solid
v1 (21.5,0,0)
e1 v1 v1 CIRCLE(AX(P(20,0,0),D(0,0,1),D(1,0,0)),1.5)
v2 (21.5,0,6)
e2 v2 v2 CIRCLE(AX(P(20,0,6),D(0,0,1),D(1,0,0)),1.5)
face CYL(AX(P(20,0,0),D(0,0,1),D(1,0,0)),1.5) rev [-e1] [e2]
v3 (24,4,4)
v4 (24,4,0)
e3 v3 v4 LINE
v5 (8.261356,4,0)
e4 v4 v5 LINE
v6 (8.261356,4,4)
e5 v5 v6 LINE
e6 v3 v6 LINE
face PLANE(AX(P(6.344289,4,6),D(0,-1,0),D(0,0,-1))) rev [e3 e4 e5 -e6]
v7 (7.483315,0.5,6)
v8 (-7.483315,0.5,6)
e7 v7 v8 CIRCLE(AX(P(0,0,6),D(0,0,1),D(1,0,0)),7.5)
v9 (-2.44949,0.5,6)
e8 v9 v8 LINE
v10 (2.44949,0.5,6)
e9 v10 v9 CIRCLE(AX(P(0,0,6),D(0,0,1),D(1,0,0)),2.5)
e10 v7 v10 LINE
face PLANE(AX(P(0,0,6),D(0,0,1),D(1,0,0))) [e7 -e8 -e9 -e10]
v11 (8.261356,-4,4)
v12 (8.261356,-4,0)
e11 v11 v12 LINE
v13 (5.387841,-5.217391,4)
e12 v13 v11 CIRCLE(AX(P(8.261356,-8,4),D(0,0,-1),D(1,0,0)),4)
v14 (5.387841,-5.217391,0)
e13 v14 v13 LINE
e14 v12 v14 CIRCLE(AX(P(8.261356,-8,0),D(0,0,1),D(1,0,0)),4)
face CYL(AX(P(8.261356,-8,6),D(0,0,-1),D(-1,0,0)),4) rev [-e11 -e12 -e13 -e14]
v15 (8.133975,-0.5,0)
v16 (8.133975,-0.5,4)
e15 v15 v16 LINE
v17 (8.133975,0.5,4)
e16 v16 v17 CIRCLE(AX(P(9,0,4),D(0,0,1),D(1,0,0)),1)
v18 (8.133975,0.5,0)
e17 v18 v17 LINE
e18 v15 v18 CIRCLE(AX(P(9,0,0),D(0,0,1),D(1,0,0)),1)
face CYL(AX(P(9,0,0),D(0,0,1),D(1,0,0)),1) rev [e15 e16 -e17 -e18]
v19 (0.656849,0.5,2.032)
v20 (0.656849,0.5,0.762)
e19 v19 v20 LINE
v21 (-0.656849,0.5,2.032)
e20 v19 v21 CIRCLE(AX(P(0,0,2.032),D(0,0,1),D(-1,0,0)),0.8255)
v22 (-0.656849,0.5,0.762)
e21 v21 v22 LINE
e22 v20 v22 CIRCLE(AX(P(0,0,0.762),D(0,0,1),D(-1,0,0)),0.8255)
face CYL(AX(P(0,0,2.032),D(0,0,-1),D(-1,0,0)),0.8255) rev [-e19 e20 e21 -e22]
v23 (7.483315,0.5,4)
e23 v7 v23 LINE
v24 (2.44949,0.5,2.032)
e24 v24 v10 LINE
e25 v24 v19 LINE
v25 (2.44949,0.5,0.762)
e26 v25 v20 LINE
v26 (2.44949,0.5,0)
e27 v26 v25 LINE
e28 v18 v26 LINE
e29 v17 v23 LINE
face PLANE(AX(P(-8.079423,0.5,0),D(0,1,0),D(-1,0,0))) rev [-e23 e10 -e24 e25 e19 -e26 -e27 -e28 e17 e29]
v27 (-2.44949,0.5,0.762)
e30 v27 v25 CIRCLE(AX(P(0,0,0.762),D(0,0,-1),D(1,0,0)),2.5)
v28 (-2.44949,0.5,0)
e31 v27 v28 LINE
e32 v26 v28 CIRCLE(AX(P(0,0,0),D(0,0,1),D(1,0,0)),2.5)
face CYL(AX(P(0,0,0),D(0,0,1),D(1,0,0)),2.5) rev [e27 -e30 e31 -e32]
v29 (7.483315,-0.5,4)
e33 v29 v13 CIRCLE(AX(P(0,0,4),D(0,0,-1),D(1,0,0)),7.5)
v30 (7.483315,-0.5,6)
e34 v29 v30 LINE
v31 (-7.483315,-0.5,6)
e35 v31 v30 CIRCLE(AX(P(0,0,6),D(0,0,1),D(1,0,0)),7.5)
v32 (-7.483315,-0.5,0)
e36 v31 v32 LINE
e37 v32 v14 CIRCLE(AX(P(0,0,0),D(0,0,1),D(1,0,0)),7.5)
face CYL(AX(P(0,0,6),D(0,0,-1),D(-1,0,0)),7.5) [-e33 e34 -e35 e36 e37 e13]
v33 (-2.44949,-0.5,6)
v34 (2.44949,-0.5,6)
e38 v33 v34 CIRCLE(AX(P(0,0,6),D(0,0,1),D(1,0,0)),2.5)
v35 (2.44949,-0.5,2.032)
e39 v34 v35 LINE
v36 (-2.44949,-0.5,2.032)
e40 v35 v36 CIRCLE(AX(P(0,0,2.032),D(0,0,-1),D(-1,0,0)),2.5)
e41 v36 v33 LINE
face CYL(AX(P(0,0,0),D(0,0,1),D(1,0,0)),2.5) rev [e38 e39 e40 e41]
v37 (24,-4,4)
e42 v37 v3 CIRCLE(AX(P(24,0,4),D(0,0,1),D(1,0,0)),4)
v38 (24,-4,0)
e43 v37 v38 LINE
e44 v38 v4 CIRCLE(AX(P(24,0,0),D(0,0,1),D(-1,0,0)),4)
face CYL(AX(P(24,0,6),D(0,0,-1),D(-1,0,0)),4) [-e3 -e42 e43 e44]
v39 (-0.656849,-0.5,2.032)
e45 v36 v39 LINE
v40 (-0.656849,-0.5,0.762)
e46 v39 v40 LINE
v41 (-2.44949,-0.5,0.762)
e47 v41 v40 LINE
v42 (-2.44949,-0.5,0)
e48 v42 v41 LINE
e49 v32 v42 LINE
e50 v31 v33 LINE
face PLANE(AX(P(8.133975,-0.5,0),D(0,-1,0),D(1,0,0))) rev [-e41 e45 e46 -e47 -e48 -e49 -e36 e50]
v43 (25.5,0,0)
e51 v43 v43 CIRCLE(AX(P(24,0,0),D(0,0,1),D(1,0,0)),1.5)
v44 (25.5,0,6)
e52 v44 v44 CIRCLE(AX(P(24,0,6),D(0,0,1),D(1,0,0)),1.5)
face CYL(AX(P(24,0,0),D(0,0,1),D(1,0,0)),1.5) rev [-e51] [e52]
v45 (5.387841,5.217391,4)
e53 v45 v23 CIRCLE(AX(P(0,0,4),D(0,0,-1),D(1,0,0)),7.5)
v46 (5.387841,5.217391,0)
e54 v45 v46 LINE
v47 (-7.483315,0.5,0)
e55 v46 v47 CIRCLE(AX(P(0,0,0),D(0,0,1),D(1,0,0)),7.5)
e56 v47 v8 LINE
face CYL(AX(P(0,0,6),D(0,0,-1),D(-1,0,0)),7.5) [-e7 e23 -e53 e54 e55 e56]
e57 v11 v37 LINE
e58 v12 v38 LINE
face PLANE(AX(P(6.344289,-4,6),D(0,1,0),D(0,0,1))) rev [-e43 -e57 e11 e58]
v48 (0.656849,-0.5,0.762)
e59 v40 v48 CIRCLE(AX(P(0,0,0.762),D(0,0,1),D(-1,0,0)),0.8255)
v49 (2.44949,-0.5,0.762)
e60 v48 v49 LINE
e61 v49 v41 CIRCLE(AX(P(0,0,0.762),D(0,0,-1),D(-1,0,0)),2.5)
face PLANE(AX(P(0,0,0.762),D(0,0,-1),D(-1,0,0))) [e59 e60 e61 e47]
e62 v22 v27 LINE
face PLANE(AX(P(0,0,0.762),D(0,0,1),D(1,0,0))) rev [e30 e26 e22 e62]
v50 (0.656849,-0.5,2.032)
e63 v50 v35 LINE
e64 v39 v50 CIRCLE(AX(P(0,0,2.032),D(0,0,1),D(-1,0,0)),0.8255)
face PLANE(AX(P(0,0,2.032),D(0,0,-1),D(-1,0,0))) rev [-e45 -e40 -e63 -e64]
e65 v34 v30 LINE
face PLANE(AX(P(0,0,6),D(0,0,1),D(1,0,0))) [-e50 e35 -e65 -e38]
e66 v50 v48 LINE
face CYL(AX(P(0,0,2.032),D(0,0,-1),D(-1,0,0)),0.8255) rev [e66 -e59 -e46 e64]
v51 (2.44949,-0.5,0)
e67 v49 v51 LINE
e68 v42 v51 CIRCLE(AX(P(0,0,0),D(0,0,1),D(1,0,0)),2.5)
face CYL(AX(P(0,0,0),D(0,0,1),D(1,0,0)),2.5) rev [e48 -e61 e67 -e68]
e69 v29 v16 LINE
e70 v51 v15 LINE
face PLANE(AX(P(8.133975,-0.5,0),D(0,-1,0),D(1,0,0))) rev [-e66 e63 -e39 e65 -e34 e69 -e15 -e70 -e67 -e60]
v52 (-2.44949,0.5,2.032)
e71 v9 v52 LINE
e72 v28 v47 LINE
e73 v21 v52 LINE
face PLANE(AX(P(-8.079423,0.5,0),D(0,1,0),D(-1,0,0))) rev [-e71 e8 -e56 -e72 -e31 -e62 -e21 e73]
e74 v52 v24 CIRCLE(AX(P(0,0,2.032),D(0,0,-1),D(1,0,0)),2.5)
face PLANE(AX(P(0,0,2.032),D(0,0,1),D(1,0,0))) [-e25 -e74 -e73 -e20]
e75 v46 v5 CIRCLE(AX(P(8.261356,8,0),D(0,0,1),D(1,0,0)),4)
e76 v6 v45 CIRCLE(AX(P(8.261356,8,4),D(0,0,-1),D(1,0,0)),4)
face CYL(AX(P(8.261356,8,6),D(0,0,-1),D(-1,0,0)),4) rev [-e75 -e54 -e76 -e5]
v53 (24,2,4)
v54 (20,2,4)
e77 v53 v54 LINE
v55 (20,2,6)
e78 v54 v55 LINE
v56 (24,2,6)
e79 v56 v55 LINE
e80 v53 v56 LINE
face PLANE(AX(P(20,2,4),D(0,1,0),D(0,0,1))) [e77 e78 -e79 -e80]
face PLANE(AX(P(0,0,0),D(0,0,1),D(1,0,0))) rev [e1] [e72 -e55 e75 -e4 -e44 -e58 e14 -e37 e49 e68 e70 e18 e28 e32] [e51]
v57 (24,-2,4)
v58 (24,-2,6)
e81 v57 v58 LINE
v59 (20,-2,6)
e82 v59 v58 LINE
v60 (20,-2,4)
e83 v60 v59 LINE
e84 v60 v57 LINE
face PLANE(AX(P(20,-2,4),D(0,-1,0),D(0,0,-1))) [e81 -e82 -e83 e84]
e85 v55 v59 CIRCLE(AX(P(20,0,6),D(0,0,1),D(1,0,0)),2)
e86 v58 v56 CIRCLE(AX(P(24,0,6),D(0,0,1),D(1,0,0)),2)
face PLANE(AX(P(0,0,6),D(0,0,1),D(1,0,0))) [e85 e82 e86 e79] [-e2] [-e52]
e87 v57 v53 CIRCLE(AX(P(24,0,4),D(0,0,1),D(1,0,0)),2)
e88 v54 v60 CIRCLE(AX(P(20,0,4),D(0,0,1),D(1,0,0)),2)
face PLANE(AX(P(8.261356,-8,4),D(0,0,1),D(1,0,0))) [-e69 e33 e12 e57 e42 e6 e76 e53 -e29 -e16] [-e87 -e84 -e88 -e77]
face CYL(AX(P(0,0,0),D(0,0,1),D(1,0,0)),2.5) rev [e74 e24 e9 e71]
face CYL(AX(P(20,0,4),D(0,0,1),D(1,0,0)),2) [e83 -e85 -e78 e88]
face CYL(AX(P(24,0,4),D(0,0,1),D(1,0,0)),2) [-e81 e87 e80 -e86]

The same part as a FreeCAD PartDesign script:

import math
import FreeCAD as App
import Part
import Sketcher
from FreeCAD import Vector


def edges_at(feature, points):
    """Names of the edges that pass closest to the given points."""
    edges = feature.Shape.Edges
    near = lambda p: min(range(len(edges)), key=lambda i: edges[i].distToShape(Part.Vertex(*p))[0])
    return sorted({f"Edge{near(p) + 1}" for p in points})

doc = App.newDocument("Part")
body = doc.addObject("PartDesign::Body", "Body")

# Sketch on XY plane
sketch1 = body.newObject("Sketcher::SketchObject", "Sketch")
sketch1.AttachmentSupport = (doc.getObject("XY_Plane"), [""])
sketch1.MapMode = "FlatFace"
sketch1.addGeometry([
    Part.LineSegment(Vector(24, 4, 0), Vector(6.344289, 4, 0)),
    Part.ArcOfCircle(Part.Circle(Vector(0, 0, 0), Vector(0, 0, 1), 7.5), math.radians(32.230953), math.radians(327.769047)),
    Part.LineSegment(Vector(6.344289, -4, 0), Vector(24, -4, 0)),
    Part.ArcOfCircle(Part.Circle(Vector(24, 0, 0), Vector(0, 0, 1), 4), math.radians(-90), math.radians(90)),
], False)
sketch1.addConstraint([
    Sketcher.Constraint("Coincident", 0, 2, 1, 1),
    Sketcher.Constraint("Coincident", 1, 2, 2, 1),
    Sketcher.Constraint("Tangent", 2, 2, 3, 1),
    Sketcher.Constraint("Tangent", 3, 2, 0, 1),
    Sketcher.Constraint("Horizontal", 0),
    Sketcher.Constraint("Horizontal", 2),
    Sketcher.Constraint("Coincident", 1, 3, -1, 1),
    Sketcher.Constraint("PointOnObject", 3, 3, -1),
    Sketcher.Constraint("Radius", 3, 4.0),
    Sketcher.Constraint("Radius", 1, 7.5),
    Sketcher.Constraint("DistanceX", -1, 1, 3, 3, 24.0),
])
pad1 = body.newObject("PartDesign::Pad", "Pad")
pad1.Profile = sketch1
pad1.Length = 6
doc.recompute()

fillet = body.newObject("PartDesign::Fillet", "Fillet")
fillet.Base = (pad1, edges_at(pad1, [(6.344, 4, 3), (6.344, -4, 3)]))
fillet.Radius = 4

# Sketch on XY plane
sketch2 = body.newObject("Sketcher::SketchObject", "Sketch001")
sketch2.AttachmentSupport = (doc.getObject("XY_Plane"), [""])
sketch2.MapMode = "FlatFace"
sketch2.AttachmentOffset = App.Placement(Vector(0, 0, 6), App.Rotation())
sketch2.addGeometry([
    Part.LineSegment(Vector(8.261356, -4, 0), Vector(24, -4, 0)),  # 0
    Part.ArcOfCircle(Part.Circle(Vector(24, 0, 0), Vector(0, 0, 1), 4), math.radians(-90), math.radians(90)),  # 1
    Part.LineSegment(Vector(24, 4, 0), Vector(8.261356, 4, 0)),  # 2
    Part.ArcOfCircle(Part.Circle(Vector(8.261356, 8, 0), Vector(0, 0, 1), 4), math.radians(-135.92079), math.radians(-90)),  # 3
    Part.ArcOfCircle(Part.Circle(Vector(0, 0, 0), Vector(0, 0, 1), 7.5), math.radians(-44.07921), math.radians(44.07921)),  # 4
    Part.ArcOfCircle(Part.Circle(Vector(8.261356, -8, 0), Vector(0, 0, 1), 4), math.radians(90), math.radians(135.92079)),  # 5
    Part.ArcOfCircle(Part.Circle(Vector(20, 0, 0), Vector(0, 0, 1), 2), math.radians(90), math.radians(270)),  # 6
    Part.LineSegment(Vector(20, 2, 0), Vector(24, 2, 0)),  # 7
    Part.ArcOfCircle(Part.Circle(Vector(24, 0, 0), Vector(0, 0, 1), 2), math.radians(-90), math.radians(90)),  # 8
    Part.LineSegment(Vector(24, -2, 0), Vector(20, -2, 0)),  # 9
], False)
sketch2.addConstraint([
    Sketcher.Constraint("Tangent", 0, 2, 1, 1),
    Sketcher.Constraint("Tangent", 1, 2, 2, 1),
    Sketcher.Constraint("Tangent", 2, 2, 3, 2),
    Sketcher.Constraint("Tangent", 3, 1, 4, 2),
    Sketcher.Constraint("Tangent", 4, 1, 5, 2),
    Sketcher.Constraint("Tangent", 5, 1, 0, 1),
    Sketcher.Constraint("Tangent", 6, 1, 7, 1),
    Sketcher.Constraint("Tangent", 7, 2, 8, 2),
    Sketcher.Constraint("Tangent", 8, 1, 9, 1),
    Sketcher.Constraint("Tangent", 9, 2, 6, 2),
    Sketcher.Constraint("Horizontal", 0),
    Sketcher.Constraint("Horizontal", 2),
    Sketcher.Constraint("Horizontal", 7),
    Sketcher.Constraint("Horizontal", 9),
    Sketcher.Constraint("Coincident", 4, 3, -1, 1),
    Sketcher.Constraint("Coincident", 8, 3, 1, 3),
    Sketcher.Constraint("Equal", 1, 3),
    Sketcher.Constraint("Equal", 3, 5),
    Sketcher.Constraint("PointOnObject", 1, 3, -1),
    Sketcher.Constraint("Radius", 1, 4.0),
    Sketcher.Constraint("Radius", 6, 2.0),
    Sketcher.Constraint("Radius", 4, 7.5),
    Sketcher.Constraint("DistanceX", 7, 1, 7, 2, 4.0),
    Sketcher.Constraint("DistanceX", -1, 1, 1, 3, 24.0),
])
pocket1 = body.newObject("PartDesign::Pocket", "Pocket")
pocket1.Profile = sketch2
pocket1.Length = 2

# Sketch on XY plane
sketch3 = body.newObject("Sketcher::SketchObject", "Sketch002")
sketch3.AttachmentSupport = (doc.getObject("XY_Plane"), [""])
sketch3.MapMode = "FlatFace"
sketch3.AttachmentOffset = App.Placement(Vector(0, 0, 6), App.Rotation())
sketch3.addGeometry([
    Part.Circle(Vector(20, 0, 0), Vector(0, 0, 1), 1.5),
    Part.Circle(Vector(24, 0, 0), Vector(0, 0, 1), 1.5),
    Part.Circle(Vector(0, 0, 0), Vector(0, 0, 1), 2.5),
], False)
sketch3.addConstraint([
    Sketcher.Constraint("Coincident", 2, 3, -1, 1),
    Sketcher.Constraint("Equal", 0, 1),
    Sketcher.Constraint("PointOnObject", 0, 3, -1),
    Sketcher.Constraint("PointOnObject", 1, 3, -1),
    Sketcher.Constraint("Diameter", 0, 3.0),
    Sketcher.Constraint("Diameter", 2, 5.0),
    Sketcher.Constraint("DistanceX", -1, 1, 0, 3, 20.0),
    Sketcher.Constraint("DistanceX", -1, 1, 1, 3, 24.0),
])
pocket2 = body.newObject("PartDesign::Pocket", "Pocket001")
pocket2.Profile = sketch3
pocket2.Type = "ThroughAll"

# Sketch on XY plane
sketch4 = body.newObject("Sketcher::SketchObject", "Sketch003")
sketch4.AttachmentSupport = (doc.getObject("XY_Plane"), [""])
sketch4.MapMode = "FlatFace"
sketch4.AttachmentOffset = App.Placement(Vector(0, 0, 6), App.Rotation())
sketch4.addGeometry([
    Part.LineSegment(Vector(8.133975, 0.5, 0), Vector(-8.079423, 0.5, 0)),
    Part.LineSegment(Vector(-8.079423, 0.5, 0), Vector(-8.079423, -0.5, 0)),
    Part.LineSegment(Vector(-8.079423, -0.5, 0), Vector(8.133975, -0.5, 0)),
    Part.ArcOfCircle(Part.Circle(Vector(9, 0, 0), Vector(0, 0, 1), 1), math.radians(-150), math.radians(150)),
], False)
sketch4.addConstraint([
    Sketcher.Constraint("Coincident", 0, 2, 1, 1),
    Sketcher.Constraint("Coincident", 1, 2, 2, 1),
    Sketcher.Constraint("Coincident", 2, 2, 3, 1),
    Sketcher.Constraint("Coincident", 3, 2, 0, 1),
    Sketcher.Constraint("Horizontal", 0),
    Sketcher.Constraint("Vertical", 1),
    Sketcher.Constraint("Horizontal", 2),
    Sketcher.Constraint("Symmetric", 2, 2, 3, 2, -1),
    Sketcher.Constraint("Radius", 3, 1.0),
    Sketcher.Constraint("DistanceY", 1, 2, 1, 1, 1.0),
    Sketcher.Constraint("DistanceX", -1, 1, 3, 3, 9.0),
    Sketcher.Constraint("DistanceX", 0, 2, 0, 1, 16.213397),
])
pocket3 = body.newObject("PartDesign::Pocket", "Pocket002")
pocket3.Profile = sketch4
pocket3.Type = "ThroughAll"

# Sketch on XY plane
sketch5 = body.newObject("Sketcher::SketchObject", "Sketch004")
sketch5.AttachmentSupport = (doc.getObject("XY_Plane"), [""])
sketch5.MapMode = "FlatFace"
sketch5.AttachmentOffset = App.Placement(Vector(0, 0, 2.032), App.Rotation())
sketch5.addGeometry([
    Part.LineSegment(Vector(2.44949, 0.5, 0), Vector(0.656849, 0.5, 0)),  # 0
    Part.ArcOfCircle(Part.Circle(Vector(0, 0, 0), Vector(0, 0, 1), 0.8255), math.radians(37.278764), math.radians(142.721236)),  # 1
    Part.LineSegment(Vector(-0.656849, 0.5, 0), Vector(-2.44949, 0.5, 0)),  # 2
    Part.ArcOfCircle(Part.Circle(Vector(0, 0, 0), Vector(0, 0, 1), 2.5), math.radians(11.536959), math.radians(168.463041)),  # 3
    Part.LineSegment(Vector(0.656849, -0.5, 0), Vector(2.44949, -0.5, 0)),  # 4
    Part.ArcOfCircle(Part.Circle(Vector(0, 0, 0), Vector(0, 0, 1), 2.5), math.radians(-168.463041), math.radians(-11.536959)),  # 5
    Part.LineSegment(Vector(-2.44949, -0.5, 0), Vector(-0.656849, -0.5, 0)),  # 6
    Part.ArcOfCircle(Part.Circle(Vector(0, 0, 0), Vector(0, 0, 1), 0.8255), math.radians(-142.721236), math.radians(-37.278764)),  # 7
], False)
sketch5.addConstraint([
    Sketcher.Constraint("Coincident", 0, 2, 1, 1),
    Sketcher.Constraint("Coincident", 1, 2, 2, 1),
    Sketcher.Constraint("Coincident", 2, 2, 3, 2),
    Sketcher.Constraint("Coincident", 3, 1, 0, 1),
    Sketcher.Constraint("Coincident", 4, 2, 5, 2),
    Sketcher.Constraint("Coincident", 5, 1, 6, 1),
    Sketcher.Constraint("Coincident", 6, 2, 7, 1),
    Sketcher.Constraint("Coincident", 7, 2, 4, 1),
    Sketcher.Constraint("Horizontal", 0),
    Sketcher.Constraint("Horizontal", 2),
    Sketcher.Constraint("Horizontal", 4),
    Sketcher.Constraint("Horizontal", 6),
    Sketcher.Constraint("Coincident", 1, 3, -1, 1),
    Sketcher.Constraint("Coincident", 3, 3, -1, 1),
    Sketcher.Constraint("Coincident", 5, 3, -1, 1),
    Sketcher.Constraint("Coincident", 7, 3, -1, 1),
    Sketcher.Constraint("Equal", 3, 5),
    Sketcher.Constraint("Equal", 1, 7),
    Sketcher.Constraint("Horizontal", 0, 2, 1, 2),
    Sketcher.Constraint("Horizontal", 4, 2, 5, 1),
    Sketcher.Constraint("Vertical", 3, 1, 4, 2),
    Sketcher.Constraint("Radius", 3, 2.5),
    Sketcher.Constraint("DistanceY", 4, 2, 3, 1, 1.0),
    Sketcher.Constraint("Radius", 1, 0.8255),
])
pad2 = body.newObject("PartDesign::Pad", "Pad001")
pad2.Profile = sketch5
pad2.Length = 1.27
pad2.Reversed = True

doc.recompute()
